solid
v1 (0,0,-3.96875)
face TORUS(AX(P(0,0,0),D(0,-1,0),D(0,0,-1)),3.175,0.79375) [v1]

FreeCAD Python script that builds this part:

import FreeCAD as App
import Part
import Sketcher

V = App.Vector
Q = App.Units.Quantity

doc = App.newDocument("Part")
params = doc.addObject("Spreadsheet::Sheet", "Params")
for row, (alias, value) in enumerate([
    ("sketch1_diameter", "0.0625 in"),
    ("revolution_angle", "360 deg"),
], start=1):
    params.set(f"A{row}", alias)
    params.set(f"B{row}", "=" + value)
    params.setAlias(f"B{row}", alias)

body = doc.addObject("PartDesign::Body", "Body")

# Sketch on XY plane
sketch1 = body.newObject("Sketcher::SketchObject", "Sketch")
sketch1.AttachmentSupport = (doc.getObject("XY_Plane"), [""])
sketch1.MapMode = "FlatFace"
sketch1.addGeometry(Part.Circle(V(3.175, 0, 0), V(0, 0, 1), 0.79375), False)
sketch1.addConstraint(Sketcher.Constraint("PointOnObject", 0, 3, -1))
sketch1.addConstraint(Sketcher.Constraint("Diameter", 0, Q("0.0625 in")))
sketch1.addConstraint(Sketcher.Constraint("DistanceX", -1, 1, 0, 3, Q("0.125 in")))
sketch1.setExpression("Constraints[1]", "Params.sketch1_diameter")
revolution = body.newObject("PartDesign::Revolution", "Revolution")
revolution.Profile = sketch1
revolution.ReferenceAxis = (sketch1, ["V_Axis"])
revolution.setExpression("Angle", "Params.revolution_angle")

doc.recompute()
